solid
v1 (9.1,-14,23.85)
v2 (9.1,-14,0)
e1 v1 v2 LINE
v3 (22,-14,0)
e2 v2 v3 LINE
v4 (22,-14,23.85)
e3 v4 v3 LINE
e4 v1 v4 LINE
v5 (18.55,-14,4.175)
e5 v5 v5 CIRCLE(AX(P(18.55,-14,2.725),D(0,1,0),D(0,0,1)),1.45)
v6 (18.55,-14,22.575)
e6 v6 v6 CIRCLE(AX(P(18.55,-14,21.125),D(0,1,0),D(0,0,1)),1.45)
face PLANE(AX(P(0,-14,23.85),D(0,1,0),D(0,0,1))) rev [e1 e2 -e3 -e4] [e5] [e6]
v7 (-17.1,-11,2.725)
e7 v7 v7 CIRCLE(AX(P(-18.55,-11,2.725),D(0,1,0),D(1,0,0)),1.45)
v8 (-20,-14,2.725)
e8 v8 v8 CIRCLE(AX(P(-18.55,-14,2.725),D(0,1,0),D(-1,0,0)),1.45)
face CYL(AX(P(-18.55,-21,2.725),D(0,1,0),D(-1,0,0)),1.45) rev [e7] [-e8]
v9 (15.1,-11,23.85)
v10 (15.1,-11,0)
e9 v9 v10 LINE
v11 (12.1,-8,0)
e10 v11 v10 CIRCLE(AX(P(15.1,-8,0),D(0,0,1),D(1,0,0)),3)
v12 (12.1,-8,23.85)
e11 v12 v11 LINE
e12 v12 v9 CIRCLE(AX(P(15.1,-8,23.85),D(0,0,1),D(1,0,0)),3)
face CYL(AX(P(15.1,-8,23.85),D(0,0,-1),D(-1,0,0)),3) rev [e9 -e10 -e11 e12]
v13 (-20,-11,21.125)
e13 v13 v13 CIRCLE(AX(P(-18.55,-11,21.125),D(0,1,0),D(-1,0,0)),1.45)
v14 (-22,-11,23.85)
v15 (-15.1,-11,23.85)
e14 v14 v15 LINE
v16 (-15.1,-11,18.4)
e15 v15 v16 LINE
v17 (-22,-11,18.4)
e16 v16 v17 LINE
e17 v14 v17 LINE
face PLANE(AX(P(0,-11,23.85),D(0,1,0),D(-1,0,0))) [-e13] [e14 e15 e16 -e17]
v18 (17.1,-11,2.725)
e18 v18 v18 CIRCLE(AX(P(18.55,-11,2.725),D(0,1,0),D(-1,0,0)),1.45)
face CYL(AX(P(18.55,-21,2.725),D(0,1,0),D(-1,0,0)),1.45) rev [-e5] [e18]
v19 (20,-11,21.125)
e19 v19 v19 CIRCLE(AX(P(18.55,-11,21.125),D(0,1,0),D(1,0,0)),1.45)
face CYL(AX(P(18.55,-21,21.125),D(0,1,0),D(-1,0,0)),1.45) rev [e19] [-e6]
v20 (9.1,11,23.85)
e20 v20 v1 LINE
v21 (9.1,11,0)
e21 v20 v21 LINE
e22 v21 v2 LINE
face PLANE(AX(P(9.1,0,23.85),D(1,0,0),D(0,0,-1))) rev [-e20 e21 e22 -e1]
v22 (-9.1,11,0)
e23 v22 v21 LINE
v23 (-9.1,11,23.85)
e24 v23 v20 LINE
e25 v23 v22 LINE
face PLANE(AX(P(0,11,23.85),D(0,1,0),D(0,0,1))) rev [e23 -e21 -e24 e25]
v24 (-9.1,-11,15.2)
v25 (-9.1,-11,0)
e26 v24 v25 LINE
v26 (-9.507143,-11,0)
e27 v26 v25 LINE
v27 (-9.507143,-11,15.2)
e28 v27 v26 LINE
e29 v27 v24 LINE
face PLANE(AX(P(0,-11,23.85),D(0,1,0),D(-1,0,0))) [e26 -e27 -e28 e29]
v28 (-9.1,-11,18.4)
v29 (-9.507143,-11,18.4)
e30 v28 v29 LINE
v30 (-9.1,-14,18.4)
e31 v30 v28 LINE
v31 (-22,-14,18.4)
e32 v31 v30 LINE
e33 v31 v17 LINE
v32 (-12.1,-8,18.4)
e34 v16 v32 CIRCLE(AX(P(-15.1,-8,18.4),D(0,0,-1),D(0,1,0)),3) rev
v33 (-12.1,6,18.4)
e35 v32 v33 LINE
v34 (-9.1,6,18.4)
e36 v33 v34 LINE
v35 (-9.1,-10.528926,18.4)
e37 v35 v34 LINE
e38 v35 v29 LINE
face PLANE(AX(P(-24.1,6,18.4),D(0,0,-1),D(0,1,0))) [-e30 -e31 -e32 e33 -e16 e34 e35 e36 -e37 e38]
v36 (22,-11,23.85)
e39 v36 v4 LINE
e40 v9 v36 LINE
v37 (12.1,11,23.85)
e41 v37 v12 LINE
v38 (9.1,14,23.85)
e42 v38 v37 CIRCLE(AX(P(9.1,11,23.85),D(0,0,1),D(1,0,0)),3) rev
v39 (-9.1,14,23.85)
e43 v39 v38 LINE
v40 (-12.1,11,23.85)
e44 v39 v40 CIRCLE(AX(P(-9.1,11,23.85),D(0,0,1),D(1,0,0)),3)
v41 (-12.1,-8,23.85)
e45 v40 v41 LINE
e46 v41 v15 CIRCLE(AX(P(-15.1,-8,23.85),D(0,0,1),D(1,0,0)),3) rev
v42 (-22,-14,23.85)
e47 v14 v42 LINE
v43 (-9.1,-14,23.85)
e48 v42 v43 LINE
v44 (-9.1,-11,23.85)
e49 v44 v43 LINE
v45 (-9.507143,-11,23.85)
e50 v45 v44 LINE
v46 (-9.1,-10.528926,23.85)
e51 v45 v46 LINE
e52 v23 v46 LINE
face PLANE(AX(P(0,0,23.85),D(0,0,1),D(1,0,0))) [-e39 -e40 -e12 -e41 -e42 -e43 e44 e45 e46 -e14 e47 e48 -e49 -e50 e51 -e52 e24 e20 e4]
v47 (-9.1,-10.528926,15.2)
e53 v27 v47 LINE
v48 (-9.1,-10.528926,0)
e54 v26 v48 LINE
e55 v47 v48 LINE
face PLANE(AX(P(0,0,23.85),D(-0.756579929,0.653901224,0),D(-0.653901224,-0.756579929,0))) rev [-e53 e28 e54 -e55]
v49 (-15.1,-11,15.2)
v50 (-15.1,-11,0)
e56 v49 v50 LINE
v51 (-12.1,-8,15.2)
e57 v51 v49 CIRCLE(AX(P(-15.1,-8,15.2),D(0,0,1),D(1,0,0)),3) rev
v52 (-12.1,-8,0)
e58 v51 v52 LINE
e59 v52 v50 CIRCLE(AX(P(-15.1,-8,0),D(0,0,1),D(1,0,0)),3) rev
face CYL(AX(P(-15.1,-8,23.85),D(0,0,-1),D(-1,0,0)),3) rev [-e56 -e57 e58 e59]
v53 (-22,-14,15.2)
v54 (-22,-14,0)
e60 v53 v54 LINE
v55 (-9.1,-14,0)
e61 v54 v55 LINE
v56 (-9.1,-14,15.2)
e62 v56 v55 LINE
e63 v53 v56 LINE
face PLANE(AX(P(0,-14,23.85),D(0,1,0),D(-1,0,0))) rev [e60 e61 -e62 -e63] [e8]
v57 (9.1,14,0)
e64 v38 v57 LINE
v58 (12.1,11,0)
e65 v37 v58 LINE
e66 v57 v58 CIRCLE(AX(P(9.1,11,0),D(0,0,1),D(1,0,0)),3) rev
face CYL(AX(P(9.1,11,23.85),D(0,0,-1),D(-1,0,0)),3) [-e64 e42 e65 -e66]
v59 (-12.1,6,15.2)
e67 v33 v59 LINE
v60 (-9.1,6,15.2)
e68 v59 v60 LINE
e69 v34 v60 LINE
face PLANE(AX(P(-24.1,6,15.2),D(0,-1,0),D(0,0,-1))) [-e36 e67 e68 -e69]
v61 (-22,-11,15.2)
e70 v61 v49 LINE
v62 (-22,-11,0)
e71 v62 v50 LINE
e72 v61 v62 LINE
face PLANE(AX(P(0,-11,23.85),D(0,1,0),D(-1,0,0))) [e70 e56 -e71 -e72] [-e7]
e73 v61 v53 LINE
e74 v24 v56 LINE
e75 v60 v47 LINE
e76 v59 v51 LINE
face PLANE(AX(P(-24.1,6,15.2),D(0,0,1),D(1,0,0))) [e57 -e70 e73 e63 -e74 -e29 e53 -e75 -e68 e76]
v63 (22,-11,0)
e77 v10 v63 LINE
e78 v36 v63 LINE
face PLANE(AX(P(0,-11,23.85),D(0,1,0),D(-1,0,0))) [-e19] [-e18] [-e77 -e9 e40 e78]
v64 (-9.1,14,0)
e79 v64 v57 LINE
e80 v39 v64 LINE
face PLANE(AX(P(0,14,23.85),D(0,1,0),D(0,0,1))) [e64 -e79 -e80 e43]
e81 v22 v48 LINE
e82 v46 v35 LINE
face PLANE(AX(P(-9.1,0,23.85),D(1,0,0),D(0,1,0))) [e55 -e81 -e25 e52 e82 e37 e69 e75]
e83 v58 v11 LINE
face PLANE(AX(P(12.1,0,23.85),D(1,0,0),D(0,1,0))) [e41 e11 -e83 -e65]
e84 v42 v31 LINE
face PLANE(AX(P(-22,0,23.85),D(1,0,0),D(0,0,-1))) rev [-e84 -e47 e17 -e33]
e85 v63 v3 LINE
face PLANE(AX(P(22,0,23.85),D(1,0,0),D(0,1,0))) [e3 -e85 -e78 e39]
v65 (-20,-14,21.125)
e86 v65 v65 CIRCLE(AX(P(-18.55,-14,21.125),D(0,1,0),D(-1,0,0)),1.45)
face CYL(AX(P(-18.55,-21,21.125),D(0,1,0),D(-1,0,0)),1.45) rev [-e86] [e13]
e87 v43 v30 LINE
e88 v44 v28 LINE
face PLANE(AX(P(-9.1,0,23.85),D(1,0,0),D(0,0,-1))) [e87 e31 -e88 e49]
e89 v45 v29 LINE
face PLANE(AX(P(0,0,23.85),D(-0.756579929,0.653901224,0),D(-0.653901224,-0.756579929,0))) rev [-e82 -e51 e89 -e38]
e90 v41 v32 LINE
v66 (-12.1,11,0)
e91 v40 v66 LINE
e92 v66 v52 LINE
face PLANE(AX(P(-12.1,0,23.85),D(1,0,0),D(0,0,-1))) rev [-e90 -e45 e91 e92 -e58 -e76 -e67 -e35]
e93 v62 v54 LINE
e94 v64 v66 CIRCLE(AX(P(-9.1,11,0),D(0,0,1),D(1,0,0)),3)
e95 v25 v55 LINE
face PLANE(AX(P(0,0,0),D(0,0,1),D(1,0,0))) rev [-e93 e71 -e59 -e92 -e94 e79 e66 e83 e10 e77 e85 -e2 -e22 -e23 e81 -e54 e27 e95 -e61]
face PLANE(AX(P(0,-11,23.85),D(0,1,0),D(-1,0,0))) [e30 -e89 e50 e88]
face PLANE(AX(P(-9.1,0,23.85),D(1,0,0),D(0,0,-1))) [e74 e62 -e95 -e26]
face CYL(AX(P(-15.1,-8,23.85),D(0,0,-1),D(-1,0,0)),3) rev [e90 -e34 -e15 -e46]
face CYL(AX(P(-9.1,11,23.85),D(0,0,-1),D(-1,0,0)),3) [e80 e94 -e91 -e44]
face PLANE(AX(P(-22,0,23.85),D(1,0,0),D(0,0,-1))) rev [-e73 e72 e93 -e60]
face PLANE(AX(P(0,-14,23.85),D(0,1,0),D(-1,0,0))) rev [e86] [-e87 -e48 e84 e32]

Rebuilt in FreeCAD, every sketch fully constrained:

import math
import FreeCAD as App
import Part
import Sketcher
from FreeCAD import Vector

doc = App.newDocument("Part")
body = doc.addObject("PartDesign::Body", "Body")

# Sketch on XY plane
sketch1 = body.newObject("Sketcher::SketchObject", "Sketch")
sketch1.AttachmentSupport = (doc.getObject("XY_Plane"), [""])
sketch1.MapMode = "FlatFace"
sketch1.addGeometry([
    Part.LineSegment(Vector(-9.1, -10.53, 0), Vector(-9.1, 11, 0)),  # 0
    Part.LineSegment(Vector(-9.1, 11, 0), Vector(9.1, 11, 0)),  # 1
    Part.LineSegment(Vector(9.1, 11, 0), Vector(9.1, -14, 0)),  # 2
    Part.LineSegment(Vector(9.1, -14, 0), Vector(22, -14, 0)),  # 3
    Part.LineSegment(Vector(22, -14, 0), Vector(22, -11, 0)),  # 4
    Part.LineSegment(Vector(22, -11, 0), Vector(15.1, -11, 0)),  # 5
    Part.ArcOfCircle(Part.Circle(Vector(15.1, -8, 0), Vector(0, 0, 1), 3), math.radians(180), math.radians(270)),  # 6
    Part.LineSegment(Vector(12.1, -8, 0), Vector(12.1, 11, 0)),  # 7
    Part.ArcOfCircle(Part.Circle(Vector(9.1, 11, 0), Vector(0, 0, 1), 3), math.radians(0), math.radians(90)),  # 8
    Part.LineSegment(Vector(9.1, 14, 0), Vector(-9.1, 14, 0)),  # 9
    Part.ArcOfCircle(Part.Circle(Vector(-9.1, 11, 0), Vector(0, 0, 1), 3), math.radians(90), math.radians(180)),  # 10
    Part.LineSegment(Vector(-12.1, 11, 0), Vector(-12.1, -8, 0)),  # 11
    Part.ArcOfCircle(Part.Circle(Vector(-15.1, -8, 0), Vector(0, 0, 1), 3), math.radians(-90), math.radians(0)),  # 12
    Part.LineSegment(Vector(-15.1, -11, 0), Vector(-22, -11, 0)),  # 13
    Part.LineSegment(Vector(-22, -11, 0), Vector(-22, -14, 0)),  # 14
    Part.LineSegment(Vector(-22, -14, 0), Vector(-9.1, -14, 0)),  # 15
    Part.LineSegment(Vector(-9.1, -14, 0), Vector(-9.1, -11, 0)),  # 16
    Part.LineSegment(Vector(-9.1, -11, 0), Vector(-9.51, -11, 0)),  # 17
    Part.LineSegment(Vector(-9.51, -11, 0), Vector(-9.1, -10.53, 0)),  # 18
], False)
sketch1.addConstraint([
    Sketcher.Constraint("Coincident", 0, 2, 1, 1),
    Sketcher.Constraint("Coincident", 1, 2, 2, 1),
    Sketcher.Constraint("Coincident", 2, 2, 3, 1),
    Sketcher.Constraint("Coincident", 3, 2, 4, 1),
    Sketcher.Constraint("Coincident", 4, 2, 5, 1),
    Sketcher.Constraint("Tangent", 5, 2, 6, 2),
    Sketcher.Constraint("Tangent", 6, 1, 7, 1),
    Sketcher.Constraint("Tangent", 7, 2, 8, 1),
    Sketcher.Constraint("Tangent", 8, 2, 9, 1),
    Sketcher.Constraint("Tangent", 9, 2, 10, 1),
    Sketcher.Constraint("Tangent", 10, 2, 11, 1),
    Sketcher.Constraint("Tangent", 11, 2, 12, 2),
    Sketcher.Constraint("Tangent", 12, 1, 13, 1),
    Sketcher.Constraint("Coincident", 13, 2, 14, 1),
    Sketcher.Constraint("Coincident", 14, 2, 15, 1),
    Sketcher.Constraint("Coincident", 15, 2, 16, 1),
    Sketcher.Constraint("Coincident", 16, 2, 17, 1),
    Sketcher.Constraint("Coincident", 17, 2, 18, 1),
    Sketcher.Constraint("Coincident", 18, 2, 0, 1),
    Sketcher.Constraint("Vertical", 0),
    Sketcher.Constraint("Horizontal", 1),
    Sketcher.Constraint("Vertical", 2),
    Sketcher.Constraint("Horizontal", 3),
    Sketcher.Constraint("Vertical", 4),
    Sketcher.Constraint("Horizontal", 5),
    Sketcher.Constraint("Vertical", 7),
    Sketcher.Constraint("Horizontal", 9),
    Sketcher.Constraint("Vertical", 11),
    Sketcher.Constraint("Horizontal", 13),
    Sketcher.Constraint("Vertical", 14),
    Sketcher.Constraint("Horizontal", 15),
    Sketcher.Constraint("Vertical", 16),
    Sketcher.Constraint("Horizontal", 17),
    Sketcher.Constraint("Coincident", 0, 2, 10, 3),
    Sketcher.Constraint("Coincident", 1, 2, 8, 3),
    Sketcher.Constraint("Equal", 6, 8),
    Sketcher.Constraint("Equal", 10, 12),
    Sketcher.Constraint("Symmetric", 2, 2, 9, 2, -1, 1),
    Sketcher.Constraint("Symmetric", 8, 2, 15, 2, -1, 1),
    Sketcher.Constraint("Symmetric", 4, 2, 13, 2, -2),
    Sketcher.Constraint("Horizontal", 13, 2, 16, 2),
    Sketcher.Constraint("Radius", 6, 3.0),
    Sketcher.Constraint("DistanceY", 2, 2, 2, 1, 25.0),
    Sketcher.Constraint("DistanceY", 4, 1, 4, 2, 3.0),
    Sketcher.Constraint("DistanceX", 1, 1, 1, 2, 18.2),
    Sketcher.Constraint("DistanceX", 3, 1, 3, 2, 12.9),
    Sketcher.Constraint("DistanceX", 17, 2, 17, 1, 0.407143),
    Sketcher.Constraint("DistanceY", 0, 1, 0, 2, 21.528926),
])
pad1 = body.newObject("PartDesign::Pad", "Pad")
pad1.Profile = sketch1
pad1.Length = 23.85

# Sketch on YZ plane
sketch2 = body.newObject("Sketcher::SketchObject", "Sketch001")
sketch2.AttachmentSupport = (doc.getObject("YZ_Plane"), [""])
sketch2.MapMode = "FlatFace"
sketch2.AttachmentOffset = App.Placement(Vector(0, 0, -12.1), App.Rotation())
sketch2.addGeometry([
    Part.LineSegment(Vector(6, 15.2, 0), Vector(-14, 15.2, 0)),
    Part.LineSegment(Vector(-14, 15.2, 0), Vector(-14, 18.4, 0)),
    Part.LineSegment(Vector(-14, 18.4, 0), Vector(6, 18.4, 0)),
    Part.LineSegment(Vector(6, 18.4, 0), Vector(6, 15.2, 0)),
], False)
sketch2.addConstraint([
    Sketcher.Constraint("Coincident", 0, 2, 1, 1),
    Sketcher.Constraint("Coincident", 1, 2, 2, 1),
    Sketcher.Constraint("Coincident", 2, 2, 3, 1),
    Sketcher.Constraint("Coincident", 3, 2, 0, 1),
    Sketcher.Constraint("Horizontal", 0),
    Sketcher.Constraint("Vertical", 1),
    Sketcher.Constraint("Horizontal", 2),
    Sketcher.Constraint("Vertical", 3),
    Sketcher.Constraint("DistanceX", 0, 2, 0, 1, 20.0),
    Sketcher.Constraint("DistanceY", 1, 1, 1, 2, 3.2),
    Sketcher.Constraint("DistanceX", 0, 2, -1, 1, 14.0),
    Sketcher.Constraint("DistanceY", -1, 1, 0, 2, 15.2),
])
pocket1 = body.newObject("PartDesign::Pocket", "Pocket")
pocket1.Profile = sketch2
pocket1.Type = "TwoLengths"
pocket1.Length = 12
pocket1.Length2 = 10

# Sketch on XZ plane
sketch3 = body.newObject("Sketcher::SketchObject", "Sketch002")
sketch3.AttachmentSupport = (doc.getObject("XZ_Plane"), [""])
sketch3.MapMode = "FlatFace"
sketch3.AttachmentOffset = App.Placement(Vector(0, 0, 11), App.Rotation())
sketch3.addGeometry([
    Part.Circle(Vector(-18.6, 21.1, 0), Vector(0, 0, 1), 1.4),
    Part.Circle(Vector(-18.6, 2.7, 0), Vector(0, 0, 1), 1.4),
    Part.Circle(Vector(18.6, 21.1, 0), Vector(0, 0, 1), 1.4),
    Part.Circle(Vector(18.6, 2.7, 0), Vector(0, 0, 1), 1.4),
], False)
sketch3.addConstraint([
    Sketcher.Constraint("Equal", 0, 1),
    Sketcher.Constraint("Equal", 1, 2),
    Sketcher.Constraint("Equal", 2, 3),
    Sketcher.Constraint("Symmetric", 0, 3, 2, 3, -2),
    Sketcher.Constraint("Symmetric", 1, 3, 3, 3, -2),
    Sketcher.Constraint("Vertical", 0, 3, 1, 3),
    Sketcher.Constraint("Diameter", 0, 2.9),
    Sketcher.Constraint("DistanceY", 1, 3, 0, 3, 18.4),
    Sketcher.Constraint("DistanceX", 0, 3, 2, 3, 37.1),
    Sketcher.Constraint("DistanceY", -1, 1, 0, 3, 21.125),
])
pocket2 = body.newObject("PartDesign::Pocket", "Pocket001")
pocket2.Profile = sketch3
pocket2.Length = 10
pocket2.Reversed = True

doc.recompute()
